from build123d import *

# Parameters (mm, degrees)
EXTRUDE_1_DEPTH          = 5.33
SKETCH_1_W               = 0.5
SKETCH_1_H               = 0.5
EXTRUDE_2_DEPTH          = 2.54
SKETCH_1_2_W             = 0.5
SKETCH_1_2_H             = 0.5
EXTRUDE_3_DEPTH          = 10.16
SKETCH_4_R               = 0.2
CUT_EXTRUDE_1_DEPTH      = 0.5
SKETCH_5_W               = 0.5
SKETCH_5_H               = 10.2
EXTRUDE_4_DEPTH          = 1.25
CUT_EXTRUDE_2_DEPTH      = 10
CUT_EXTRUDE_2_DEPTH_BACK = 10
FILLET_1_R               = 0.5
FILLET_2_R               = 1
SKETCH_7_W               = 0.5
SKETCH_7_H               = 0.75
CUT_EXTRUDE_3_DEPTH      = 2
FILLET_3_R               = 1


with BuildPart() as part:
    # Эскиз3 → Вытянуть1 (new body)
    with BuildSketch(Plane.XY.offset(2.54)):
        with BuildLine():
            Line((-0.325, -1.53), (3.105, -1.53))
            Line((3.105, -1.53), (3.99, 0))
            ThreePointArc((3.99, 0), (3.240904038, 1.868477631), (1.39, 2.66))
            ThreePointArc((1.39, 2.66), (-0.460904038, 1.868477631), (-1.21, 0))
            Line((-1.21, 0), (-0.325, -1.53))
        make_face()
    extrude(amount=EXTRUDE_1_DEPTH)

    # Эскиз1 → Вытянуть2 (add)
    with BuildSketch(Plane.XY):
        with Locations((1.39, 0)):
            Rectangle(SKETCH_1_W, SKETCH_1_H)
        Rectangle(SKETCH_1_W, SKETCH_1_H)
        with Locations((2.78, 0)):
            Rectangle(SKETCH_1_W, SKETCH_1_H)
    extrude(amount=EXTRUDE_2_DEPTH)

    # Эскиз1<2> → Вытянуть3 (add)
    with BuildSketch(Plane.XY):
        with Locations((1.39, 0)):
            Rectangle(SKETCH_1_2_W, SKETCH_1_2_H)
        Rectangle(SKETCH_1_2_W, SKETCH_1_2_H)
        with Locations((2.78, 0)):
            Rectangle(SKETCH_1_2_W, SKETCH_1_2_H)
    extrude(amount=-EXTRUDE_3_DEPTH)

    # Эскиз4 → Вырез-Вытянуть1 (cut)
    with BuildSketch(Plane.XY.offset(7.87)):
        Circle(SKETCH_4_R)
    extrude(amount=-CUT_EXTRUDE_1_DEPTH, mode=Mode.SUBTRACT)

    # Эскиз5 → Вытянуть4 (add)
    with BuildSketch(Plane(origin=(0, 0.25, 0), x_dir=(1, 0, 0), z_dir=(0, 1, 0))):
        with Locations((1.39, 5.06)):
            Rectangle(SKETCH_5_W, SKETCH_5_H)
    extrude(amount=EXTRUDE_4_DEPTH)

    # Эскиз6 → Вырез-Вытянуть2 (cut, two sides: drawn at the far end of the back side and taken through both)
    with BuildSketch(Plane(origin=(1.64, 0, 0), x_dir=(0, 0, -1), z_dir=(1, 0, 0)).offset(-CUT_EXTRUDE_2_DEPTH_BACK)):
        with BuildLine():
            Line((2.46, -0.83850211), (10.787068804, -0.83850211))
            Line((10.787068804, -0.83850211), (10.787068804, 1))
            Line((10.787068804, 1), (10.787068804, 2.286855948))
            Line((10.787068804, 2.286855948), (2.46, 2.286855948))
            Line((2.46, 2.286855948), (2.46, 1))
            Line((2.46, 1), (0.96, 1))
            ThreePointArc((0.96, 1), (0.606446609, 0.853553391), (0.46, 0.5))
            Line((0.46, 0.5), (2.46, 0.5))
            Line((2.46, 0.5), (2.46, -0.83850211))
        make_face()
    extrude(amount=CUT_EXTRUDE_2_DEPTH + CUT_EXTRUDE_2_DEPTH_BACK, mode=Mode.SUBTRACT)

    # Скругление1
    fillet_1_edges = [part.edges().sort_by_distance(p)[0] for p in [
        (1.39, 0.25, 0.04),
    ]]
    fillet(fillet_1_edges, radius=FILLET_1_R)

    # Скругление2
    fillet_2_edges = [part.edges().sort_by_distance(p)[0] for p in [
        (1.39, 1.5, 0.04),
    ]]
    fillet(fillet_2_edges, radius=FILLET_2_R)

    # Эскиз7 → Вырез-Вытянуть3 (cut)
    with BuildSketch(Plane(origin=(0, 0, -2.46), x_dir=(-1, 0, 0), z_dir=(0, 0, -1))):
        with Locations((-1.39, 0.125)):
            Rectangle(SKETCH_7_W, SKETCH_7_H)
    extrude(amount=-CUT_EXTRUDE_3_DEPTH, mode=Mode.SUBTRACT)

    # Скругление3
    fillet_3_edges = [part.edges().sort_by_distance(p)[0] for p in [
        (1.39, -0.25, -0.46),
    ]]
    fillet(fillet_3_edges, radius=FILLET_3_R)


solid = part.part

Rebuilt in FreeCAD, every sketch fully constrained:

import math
import FreeCAD as App
import Part
import Sketcher

V = App.Vector
Q = App.Units.Quantity


def edges_at(feature, points):
    """Names of the edges that pass closest to the given points."""
    edges = feature.Shape.Edges
    near = lambda p: min(range(len(edges)), key=lambda i: edges[i].distToShape(Part.Vertex(*p))[0])
    return sorted({f"Edge{near(p) + 1}" for p in points})


def add_polygon(sketch, points):
    """Adds a closed chain of lines whose ends are joined by coincident constraints."""
    first, n = sketch.GeometryCount, len(points)
    for a, b in zip(points, points[1:] + points[:1]):
        sketch.addGeometry(Part.LineSegment(App.Vector(*a, 0), App.Vector(*b, 0)), False)
    for i in range(n):
        sketch.addConstraint(Sketcher.Constraint("Coincident", first + i, 2, first + (i + 1) % n, 1))

doc = App.newDocument("Part")
body = doc.addObject("PartDesign::Body", "Body")

sketch1 = body.newObject("Sketcher::SketchObject", "Sketch")
sketch1.AttachmentSupport = (doc.getObject("XY_Plane"), [""])
sketch1.MapMode = "FlatFace"
sketch1.AttachmentOffset = App.Placement(V(0, 0, 2.54), App.Rotation())
sketch1.addGeometry(Part.LineSegment(V(-0.325, -1.53, 0), V(3.105, -1.53, 0)), False)
sketch1.addGeometry(Part.LineSegment(V(3.105, -1.53, 0), V(3.99, 0, 0)), False)
sketch1.addGeometry(Part.ArcOfCircle(Part.Circle(V(1.36, 0.03, 0), V(0, 0, 1), 2.630171), math.radians(-0.653536), math.radians(89.346464)), False)
sketch1.addGeometry(Part.ArcOfCircle(Part.Circle(V(1.42, 0.03, 0), V(0, 0, 1), 2.630171), math.radians(90.653536), math.radians(180.653536)), False)
sketch1.addGeometry(Part.LineSegment(V(-1.21, 0, 0), V(-0.325, -1.53, 0)), False)
sketch1.addConstraint(Sketcher.Constraint("Coincident", 0, 2, 1, 1))
sketch1.addConstraint(Sketcher.Constraint("Coincident", 1, 2, 2, 1))
sketch1.addConstraint(Sketcher.Constraint("Coincident", 2, 2, 3, 1))
sketch1.addConstraint(Sketcher.Constraint("Coincident", 3, 2, 4, 1))
sketch1.addConstraint(Sketcher.Constraint("Coincident", 4, 2, 0, 1))
sketch1.addConstraint(Sketcher.Constraint("Horizontal", 0))
sketch1.addConstraint(Sketcher.Constraint("Equal", 2, 3))
sketch1.addConstraint(Sketcher.Constraint("PointOnObject", 1, 2, -1))
sketch1.addConstraint(Sketcher.Constraint("PointOnObject", 3, 2, -1))
sketch1.addConstraint(Sketcher.Constraint("Horizontal", 2, 3, 3, 3))
sketch1.addConstraint(Sketcher.Constraint("Equal", 1, 4))
sketch1.addConstraint(Sketcher.Constraint("DistanceX", 0, 1, 0, 2, Q("3.43 mm")))
sketch1.addConstraint(Sketcher.Constraint("DistanceX", 2, 2, 1, 2, Q("2.6 mm")))
sketch1.addConstraint(Sketcher.Constraint("DistanceX", -1, 1, 2, 3, Q("1.36 mm")))
sketch1.addConstraint(Sketcher.Constraint("DistanceY", -1, 1, 2, 3, Q("0.03 mm")))
sketch1.addConstraint(Sketcher.Constraint("DistanceX", -1, 1, 3, 3, Q("1.42 mm")))
sketch1.addConstraint(Sketcher.Constraint("DistanceY", 0, 2, -1, 1, Q("1.53 mm")))
pad1 = body.newObject("PartDesign::Pad", "Pad")
pad1.Profile = sketch1
pad1.Length = 5.33

sketch2 = body.newObject("Sketcher::SketchObject", "Sketch001")
sketch2.AttachmentSupport = (doc.getObject("XY_Plane"), [""])
sketch2.MapMode = "FlatFace"
add_polygon(sketch2, [(1.1, 0.2), (1.1, -0.2), (1.6, -0.2), (1.6, 0.2)])
add_polygon(sketch2, [(-0.2, 0.2), (-0.2, -0.2), (0.2, -0.2), (0.2, 0.2)])
add_polygon(sketch2, [(2.5, 0.2), (2.5, -0.2), (3, -0.2), (3, 0.2)])
sketch2.addConstraint(Sketcher.Constraint("Vertical", 0))
sketch2.addConstraint(Sketcher.Constraint("Horizontal", 1))
sketch2.addConstraint(Sketcher.Constraint("Vertical", 2))
sketch2.addConstraint(Sketcher.Constraint("Horizontal", 3))
sketch2.addConstraint(Sketcher.Constraint("Vertical", 4))
sketch2.addConstraint(Sketcher.Constraint("Horizontal", 5))
sketch2.addConstraint(Sketcher.Constraint("Vertical", 6))
sketch2.addConstraint(Sketcher.Constraint("Horizontal", 7))
sketch2.addConstraint(Sketcher.Constraint("Vertical", 8))
sketch2.addConstraint(Sketcher.Constraint("Horizontal", 9))
sketch2.addConstraint(Sketcher.Constraint("Vertical", 10))
sketch2.addConstraint(Sketcher.Constraint("Horizontal", 11))
sketch2.addConstraint(Sketcher.Constraint("Symmetric", 4, 2, 6, 2, -1, 1))
sketch2.addConstraint(Sketcher.Constraint("Horizontal", 1, 2, 4, 2))
sketch2.addConstraint(Sketcher.Constraint("Horizontal", 3, 2, 6, 2))
sketch2.addConstraint(Sketcher.Constraint("Horizontal", 5, 2, 8, 2))
sketch2.addConstraint(Sketcher.Constraint("Horizontal", 7, 2, 10, 2))
sketch2.addConstraint(Sketcher.Constraint("Equal", 3, 5))
sketch2.addConstraint(Sketcher.Constraint("Equal", 7, 9))
sketch2.addConstraint(Sketcher.Constraint("Equal", 11, 0))
sketch2.addConstraint(Sketcher.Constraint("DistanceX", 1, 1, 1, 2, Q("0.5 mm")))
sketch2.addConstraint(Sketcher.Constraint("DistanceX", -1, 1, 0, 2, Q("1.14 mm")))
sketch2.addConstraint(Sketcher.Constraint("DistanceX", -1, 1, 8, 2, Q("2.53 mm")))
pad2 = body.newObject("PartDesign::Pad", "Pad001")
pad2.Profile = sketch2
pad2.Length = 2.54

sketch3 = body.newObject("Sketcher::SketchObject", "Sketch002")
sketch3.AttachmentSupport = (doc.getObject("XY_Plane"), [""])
sketch3.MapMode = "FlatFace"
add_polygon(sketch3, [(1.1, 0.2), (1.1, -0.2), (1.6, -0.2), (1.6, 0.2)])
add_polygon(sketch3, [(-0.2, 0.2), (-0.2, -0.2), (0.2, -0.2), (0.2, 0.2)])
add_polygon(sketch3, [(2.5, 0.2), (2.5, -0.2), (3, -0.2), (3, 0.2)])
sketch3.addConstraint(Sketcher.Constraint("Vertical", 0))
sketch3.addConstraint(Sketcher.Constraint("Horizontal", 1))
sketch3.addConstraint(Sketcher.Constraint("Vertical", 2))
sketch3.addConstraint(Sketcher.Constraint("Horizontal", 3))
sketch3.addConstraint(Sketcher.Constraint("Vertical", 4))
sketch3.addConstraint(Sketcher.Constraint("Horizontal", 5))
sketch3.addConstraint(Sketcher.Constraint("Vertical", 6))
sketch3.addConstraint(Sketcher.Constraint("Horizontal", 7))
sketch3.addConstraint(Sketcher.Constraint("Vertical", 8))
sketch3.addConstraint(Sketcher.Constraint("Horizontal", 9))
sketch3.addConstraint(Sketcher.Constraint("Vertical", 10))
sketch3.addConstraint(Sketcher.Constraint("Horizontal", 11))
sketch3.addConstraint(Sketcher.Constraint("Symmetric", 4, 2, 6, 2, -1, 1))
sketch3.addConstraint(Sketcher.Constraint("Horizontal", 1, 2, 4, 2))
sketch3.addConstraint(Sketcher.Constraint("Horizontal", 3, 2, 6, 2))
sketch3.addConstraint(Sketcher.Constraint("Horizontal", 5, 2, 8, 2))
sketch3.addConstraint(Sketcher.Constraint("Horizontal", 7, 2, 10, 2))
sketch3.addConstraint(Sketcher.Constraint("Equal", 3, 5))
sketch3.addConstraint(Sketcher.Constraint("Equal", 7, 9))
sketch3.addConstraint(Sketcher.Constraint("Equal", 11, 0))
sketch3.addConstraint(Sketcher.Constraint("DistanceX", 1, 1, 1, 2, Q("0.5 mm")))
sketch3.addConstraint(Sketcher.Constraint("DistanceX", -1, 1, 0, 2, Q("1.14 mm")))
sketch3.addConstraint(Sketcher.Constraint("DistanceX", -1, 1, 8, 2, Q("2.53 mm")))
pad3 = body.newObject("PartDesign::Pad", "Pad002")
pad3.Profile = sketch3
pad3.Length = 10.16
pad3.Reversed = True

sketch4 = body.newObject("Sketcher::SketchObject", "Sketch003")
sketch4.AttachmentSupport = (doc.getObject("XY_Plane"), [""])
sketch4.MapMode = "FlatFace"
sketch4.AttachmentOffset = App.Placement(V(0, 0, 7.87), App.Rotation())
sketch4.addGeometry(Part.Circle(V(0, 0, 0), V(0, 0, 1), 0.2), False)
sketch4.addConstraint(Sketcher.Constraint("Coincident", 0, 3, -1, 1))
sketch4.addConstraint(Sketcher.Constraint("Diameter", 0, Q("0.4 mm")))
pocket1 = body.newObject("PartDesign::Pocket", "Pocket")
pocket1.Profile = sketch4
pocket1.Length = 0.5

sketch5 = body.newObject("Sketcher::SketchObject", "Sketch004")
sketch5.AttachmentSupport = (doc.getObject("XZ_Plane"), [""])
sketch5.MapMode = "FlatFace"
sketch5.AttachmentOffset = App.Placement(V(0, 0, -0.25), App.Rotation())
add_polygon(sketch5, [(1.1, -10.2), (1.1, 0), (1.6, 0), (1.6, -10.2)])
sketch5.addConstraint(Sketcher.Constraint("Vertical", 0))
sketch5.addConstraint(Sketcher.Constraint("Horizontal", 1))
sketch5.addConstraint(Sketcher.Constraint("Vertical", 2))
sketch5.addConstraint(Sketcher.Constraint("Horizontal", 3))
sketch5.addConstraint(Sketcher.Constraint("DistanceX", 1, 1, 1, 2, Q("0.5 mm")))
sketch5.addConstraint(Sketcher.Constraint("DistanceY", 0, 1, 0, 2, Q("10.2 mm")))
sketch5.addConstraint(Sketcher.Constraint("DistanceX", -1, 1, 0, 2, Q("1.14 mm")))
sketch5.addConstraint(Sketcher.Constraint("DistanceY", -1, 1, 0, 2, Q("0.04 mm")))
pad4 = body.newObject("PartDesign::Pad", "Pad003")
pad4.Profile = sketch5
pad4.Length = 1.25
pad4.Reversed = True

sketch6 = body.newObject("Sketcher::SketchObject", "Sketch005")
sketch6.AttachmentSupport = (doc.getObject("YZ_Plane"), [""])
sketch6.MapMode = "FlatFace"
sketch6.AttachmentOffset = App.Placement(V(0, 0, 1.64), App.Rotation())
sketch6.addGeometry(Part.LineSegment(V(-0.84, -2.46, 0), V(-0.84, -10.79, 0)), False)
sketch6.addGeometry(Part.LineSegment(V(-0.84, -10.79, 0), V(2.29, -10.79, 0)), False)
sketch6.addGeometry(Part.LineSegment(V(2.29, -10.79, 0), V(2.29, -2.46, 0)), False)
sketch6.addGeometry(Part.LineSegment(V(2.29, -2.46, 0), V(1, -2.46, 0)), False)
sketch6.addGeometry(Part.LineSegment(V(1, -2.46, 0), V(1, -0.96, 0)), False)
sketch6.addGeometry(Part.ArcOfCircle(Part.Circle(V(0.5, -0.96, 0), V(0, 0, 1), 0.5), math.radians(0), math.radians(90)), False)
sketch6.addGeometry(Part.LineSegment(V(0.5, -0.46, 0), V(0.5, -2.46, 0)), False)
sketch6.addGeometry(Part.LineSegment(V(0.5, -2.46, 0), V(-0.84, -2.46, 0)), False)
sketch6.addConstraint(Sketcher.Constraint("Coincident", 0, 2, 1, 1))
sketch6.addConstraint(Sketcher.Constraint("Coincident", 1, 2, 2, 1))
sketch6.addConstraint(Sketcher.Constraint("Coincident", 2, 2, 3, 1))
sketch6.addConstraint(Sketcher.Constraint("Coincident", 3, 2, 4, 1))
sketch6.addConstraint(Sketcher.Constraint("Tangent", 4, 2, 5, 1))
sketch6.addConstraint(Sketcher.Constraint("Coincident", 5, 2, 6, 1))
sketch6.addConstraint(Sketcher.Constraint("Coincident", 6, 2, 7, 1))
sketch6.addConstraint(Sketcher.Constraint("Coincident", 7, 2, 0, 1))
sketch6.addConstraint(Sketcher.Constraint("Vertical", 0))
sketch6.addConstraint(Sketcher.Constraint("Horizontal", 1))
sketch6.addConstraint(Sketcher.Constraint("Vertical", 2))
sketch6.addConstraint(Sketcher.Constraint("Horizontal", 3))
sketch6.addConstraint(Sketcher.Constraint("Vertical", 4))
sketch6.addConstraint(Sketcher.Constraint("Vertical", 6))
sketch6.addConstraint(Sketcher.Constraint("Horizontal", 7))
sketch6.addConstraint(Sketcher.Constraint("Horizontal", 3, 2, 6, 2))
sketch6.addConstraint(Sketcher.Constraint("Radius", 5, Q("0.5 mm")))
sketch6.addConstraint(Sketcher.Constraint("DistanceY", 6, 2, 6, 1, Q("2 mm")))
sketch6.addConstraint(Sketcher.Constraint("DistanceX", -1, 1, 3, 2, Q("1 mm")))
sketch6.addConstraint(Sketcher.Constraint("DistanceX", -1, 1, 5, 2, Q("0.5 mm")))
sketch6.addConstraint(Sketcher.Constraint("DistanceY", 5, 3, -1, 1, Q("0.96 mm")))
sketch6.addConstraint(Sketcher.Constraint("DistanceX", 1, 1, 1, 2, Q("3.125358 mm")))
sketch6.addConstraint(Sketcher.Constraint("DistanceY", 0, 2, 0, 1, Q("8.327069 mm")))
sketch6.addConstraint(Sketcher.Constraint("DistanceX", 3, 2, 3, 1, Q("1.286856 mm")))
pocket2 = body.newObject("PartDesign::Pocket", "Pocket001")
pocket2.Profile = sketch6
pocket2.Type = "ThroughAll"
pocket2.Midplane = True
doc.recompute()

fillet = body.newObject("PartDesign::Fillet", "Fillet")
fillet.Base = (pocket2, edges_at(pocket2, [(1.39, 0.25, 0.04)]))
fillet.Radius = 0.5
doc.recompute()

fillet2 = body.newObject("PartDesign::Fillet", "Fillet001")
fillet2.Base = (fillet, edges_at(fillet, [(1.39, 1.5, 0.04)]))
fillet2.Radius = 1

sketch7 = body.newObject("Sketcher::SketchObject", "Sketch006")
sketch7.AttachmentSupport = (doc.getObject("XY_Plane"), [""])
sketch7.MapMode = "FlatFace"
sketch7.AttachmentOffset = App.Placement(V(0, 0, -2.46), App.Rotation())
add_polygon(sketch7, [(1.6, 0.5), (1.6, -0.2), (1.1, -0.2), (1.1, 0.5)])
sketch7.addConstraint(Sketcher.Constraint("Vertical", 0))
sketch7.addConstraint(Sketcher.Constraint("Horizontal", 1))
sketch7.addConstraint(Sketcher.Constraint("Vertical", 2))
sketch7.addConstraint(Sketcher.Constraint("Horizontal", 3))
sketch7.addConstraint(Sketcher.Constraint("DistanceX", 1, 2, 1, 1, Q("0.5 mm")))
sketch7.addConstraint(Sketcher.Constraint("DistanceY", 0, 2, 0, 1, Q("0.75 mm")))
sketch7.addConstraint(Sketcher.Constraint("DistanceY", -1, 1, 2, 2, Q("0.5 mm")))
sketch7.addConstraint(Sketcher.Constraint("DistanceX", -1, 1, 0, 2, Q("1.64 mm")))
pocket3 = body.newObject("PartDesign::Pocket", "Pocket002")
pocket3.Profile = sketch7
pocket3.Length = 2
pocket3.Reversed = True
doc.recompute()

fillet3 = body.newObject("PartDesign::Fillet", "Fillet002")
fillet3.Base = (pocket3, edges_at(pocket3, [(1.39, -0.25, -0.46)]))
fillet3.Radius = 1

doc.recompute()
